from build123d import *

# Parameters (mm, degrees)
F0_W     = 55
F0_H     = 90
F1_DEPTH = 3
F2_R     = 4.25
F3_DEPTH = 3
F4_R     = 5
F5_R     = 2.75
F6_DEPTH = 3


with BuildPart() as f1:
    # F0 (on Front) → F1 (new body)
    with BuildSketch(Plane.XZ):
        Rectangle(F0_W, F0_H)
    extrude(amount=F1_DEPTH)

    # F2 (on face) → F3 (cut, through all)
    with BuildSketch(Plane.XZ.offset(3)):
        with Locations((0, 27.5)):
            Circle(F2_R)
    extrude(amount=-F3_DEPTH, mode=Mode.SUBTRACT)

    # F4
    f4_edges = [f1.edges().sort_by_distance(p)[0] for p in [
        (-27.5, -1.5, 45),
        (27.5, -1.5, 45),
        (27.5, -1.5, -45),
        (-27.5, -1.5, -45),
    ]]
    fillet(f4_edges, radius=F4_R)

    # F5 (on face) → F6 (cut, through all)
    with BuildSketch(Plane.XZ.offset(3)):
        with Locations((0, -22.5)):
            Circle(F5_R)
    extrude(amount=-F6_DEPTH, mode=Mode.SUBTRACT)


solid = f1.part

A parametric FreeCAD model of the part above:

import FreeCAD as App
import Part
import Sketcher

V = App.Vector
Q = App.Units.Quantity


def edges_at(feature, points):
    """Names of the edges that pass closest to the given points."""
    edges = feature.Shape.Edges
    near = lambda p: min(range(len(edges)), key=lambda i: edges[i].distToShape(Part.Vertex(*p))[0])
    return sorted({f"Edge{near(p) + 1}" for p in points})


def add_polygon(sketch, points):
    """Adds a closed chain of lines whose ends are joined by coincident constraints."""
    first, n = sketch.GeometryCount, len(points)
    for a, b in zip(points, points[1:] + points[:1]):
        sketch.addGeometry(Part.LineSegment(App.Vector(*a, 0), App.Vector(*b, 0)), False)
    for i in range(n):
        sketch.addConstraint(Sketcher.Constraint("Coincident", first + i, 2, first + (i + 1) % n, 1))

doc = App.newDocument("Part")
body = doc.addObject("PartDesign::Body", "Body")

sketch1 = body.newObject("Sketcher::SketchObject", "Sketch")
sketch1.AttachmentSupport = (doc.getObject("XZ_Plane"), [""])
sketch1.MapMode = "FlatFace"
add_polygon(sketch1, [(-28, 45), (-28, -45), (28, -45), (28, 45)])
sketch1.addConstraint([
    Sketcher.Constraint("Vertical", 0),
    Sketcher.Constraint("Horizontal", 1),
    Sketcher.Constraint("Vertical", 2),
    Sketcher.Constraint("Horizontal", 3),
    Sketcher.Constraint("Symmetric", 0, 2, 2, 2, -1, 1),
    Sketcher.Constraint("DistanceX", 1, 1, 1, 2, Q("55 mm")),
    Sketcher.Constraint("DistanceY", 0, 2, 0, 1, Q("90 mm")),
])
pad1 = body.newObject("PartDesign::Pad", "Pad")
pad1.Profile = sketch1
pad1.Length = 3

sketch2 = body.newObject("Sketcher::SketchObject", "Sketch001")
sketch2.AttachmentSupport = (doc.getObject("XZ_Plane"), [""])
sketch2.MapMode = "FlatFace"
sketch2.AttachmentOffset = App.Placement(V(0, 0, 3), App.Rotation())
sketch2.addGeometry(Part.Circle(V(0, 27.5, 0), V(0, 0, 1), 4.2), False)
sketch2.addConstraint([
    Sketcher.Constraint("PointOnObject", 0, 3, -2),
    Sketcher.Constraint("Diameter", 0, Q("8.5 mm")),
    Sketcher.Constraint("DistanceY", -1, 1, 0, 3, Q("27.5 mm")),
])
pocket1 = body.newObject("PartDesign::Pocket", "Pocket")
pocket1.Profile = sketch2
pocket1.Type = "ThroughAll"
doc.recompute()

fillet = body.newObject("PartDesign::Fillet", "Fillet")
fillet.Base = (pocket1, edges_at(pocket1, [
    (-27.5, -1.5, 45),
    (27.5, -1.5, 45),
    (27.5, -1.5, -45),
    (-27.5, -1.5, -45),
]))
fillet.Radius = 5

sketch3 = body.newObject("Sketcher::SketchObject", "Sketch002")
sketch3.AttachmentSupport = (doc.getObject("XZ_Plane"), [""])
sketch3.MapMode = "FlatFace"
sketch3.AttachmentOffset = App.Placement(V(0, 0, 3), App.Rotation())
sketch3.addGeometry(Part.Circle(V(0, -22.5, 0), V(0, 0, 1), 2.8), False)
sketch3.addConstraint([
    Sketcher.Constraint("PointOnObject", 0, 3, -2),
    Sketcher.Constraint("Diameter", 0, Q("5.5 mm")),
    Sketcher.Constraint("DistanceY", 0, 3, -1, 1, Q("22.5 mm")),
])
pocket2 = body.newObject("PartDesign::Pocket", "Pocket001")
pocket2.Profile = sketch3
pocket2.Type = "ThroughAll"

doc.recompute()
